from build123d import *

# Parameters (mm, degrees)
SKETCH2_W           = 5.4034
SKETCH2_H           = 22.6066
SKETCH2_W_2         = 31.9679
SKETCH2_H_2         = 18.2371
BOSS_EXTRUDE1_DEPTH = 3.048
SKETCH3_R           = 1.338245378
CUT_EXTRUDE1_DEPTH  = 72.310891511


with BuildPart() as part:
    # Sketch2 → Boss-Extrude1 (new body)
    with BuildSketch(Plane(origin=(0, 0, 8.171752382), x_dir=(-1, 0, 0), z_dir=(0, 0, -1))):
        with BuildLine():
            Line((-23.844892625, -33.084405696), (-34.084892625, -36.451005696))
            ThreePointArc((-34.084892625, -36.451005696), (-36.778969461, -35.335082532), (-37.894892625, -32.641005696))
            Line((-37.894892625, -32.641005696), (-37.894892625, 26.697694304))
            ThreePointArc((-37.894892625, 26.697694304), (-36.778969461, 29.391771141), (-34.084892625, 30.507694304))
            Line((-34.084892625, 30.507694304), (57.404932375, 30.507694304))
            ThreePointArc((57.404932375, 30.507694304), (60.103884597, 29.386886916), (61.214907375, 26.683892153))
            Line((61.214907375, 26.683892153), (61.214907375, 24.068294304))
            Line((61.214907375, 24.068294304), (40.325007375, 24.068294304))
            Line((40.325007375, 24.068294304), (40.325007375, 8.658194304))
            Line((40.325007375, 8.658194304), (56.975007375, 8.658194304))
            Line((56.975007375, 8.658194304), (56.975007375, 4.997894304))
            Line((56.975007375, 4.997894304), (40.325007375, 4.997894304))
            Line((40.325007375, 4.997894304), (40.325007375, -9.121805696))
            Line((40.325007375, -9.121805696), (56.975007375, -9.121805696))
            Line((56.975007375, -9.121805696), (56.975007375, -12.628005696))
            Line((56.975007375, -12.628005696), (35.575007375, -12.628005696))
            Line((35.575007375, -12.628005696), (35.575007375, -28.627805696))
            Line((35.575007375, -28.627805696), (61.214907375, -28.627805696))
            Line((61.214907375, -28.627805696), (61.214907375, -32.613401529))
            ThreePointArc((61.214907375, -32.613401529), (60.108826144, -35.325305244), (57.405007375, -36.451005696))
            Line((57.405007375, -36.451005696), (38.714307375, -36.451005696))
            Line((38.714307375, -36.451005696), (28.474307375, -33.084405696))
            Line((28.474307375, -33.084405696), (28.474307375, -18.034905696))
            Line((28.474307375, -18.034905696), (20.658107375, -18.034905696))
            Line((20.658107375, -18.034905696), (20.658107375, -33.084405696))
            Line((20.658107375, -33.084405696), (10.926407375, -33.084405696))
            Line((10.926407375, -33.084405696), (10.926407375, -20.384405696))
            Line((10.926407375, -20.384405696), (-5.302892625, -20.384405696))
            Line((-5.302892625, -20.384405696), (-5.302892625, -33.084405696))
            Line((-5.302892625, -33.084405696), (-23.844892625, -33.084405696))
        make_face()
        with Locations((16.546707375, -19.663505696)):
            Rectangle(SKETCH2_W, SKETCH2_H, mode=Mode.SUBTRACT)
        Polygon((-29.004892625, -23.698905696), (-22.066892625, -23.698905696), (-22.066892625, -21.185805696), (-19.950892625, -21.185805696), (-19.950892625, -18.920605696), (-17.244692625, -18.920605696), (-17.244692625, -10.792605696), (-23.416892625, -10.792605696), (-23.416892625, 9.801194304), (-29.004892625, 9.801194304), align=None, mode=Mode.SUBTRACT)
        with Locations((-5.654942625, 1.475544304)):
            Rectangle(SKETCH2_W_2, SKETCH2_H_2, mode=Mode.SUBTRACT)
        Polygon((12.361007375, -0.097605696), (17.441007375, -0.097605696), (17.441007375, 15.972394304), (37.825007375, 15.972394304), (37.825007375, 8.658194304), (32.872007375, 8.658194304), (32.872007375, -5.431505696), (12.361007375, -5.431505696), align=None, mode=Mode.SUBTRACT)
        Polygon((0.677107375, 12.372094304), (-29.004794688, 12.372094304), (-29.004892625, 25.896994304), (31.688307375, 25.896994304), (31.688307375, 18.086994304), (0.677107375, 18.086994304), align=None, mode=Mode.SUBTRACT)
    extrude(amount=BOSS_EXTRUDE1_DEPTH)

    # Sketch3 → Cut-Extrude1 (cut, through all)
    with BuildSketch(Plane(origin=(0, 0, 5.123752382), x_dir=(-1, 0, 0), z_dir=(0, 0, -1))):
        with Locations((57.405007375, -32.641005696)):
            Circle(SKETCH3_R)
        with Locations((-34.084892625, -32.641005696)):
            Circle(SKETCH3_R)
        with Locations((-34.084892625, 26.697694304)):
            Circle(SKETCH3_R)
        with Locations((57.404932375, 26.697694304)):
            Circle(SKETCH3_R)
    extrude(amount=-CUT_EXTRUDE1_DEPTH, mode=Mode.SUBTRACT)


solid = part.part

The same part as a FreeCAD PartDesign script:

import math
import FreeCAD as App
import Part
import Sketcher
Q = App.Units.Quantity

doc = App.newDocument("Part")
body = doc.addObject("PartDesign::Body", "Body")

# Sketch on XY plane
sketch1 = body.newObject("Sketcher::SketchObject", "Sketch")
sketch1.AttachmentSupport = (doc.getObject("XY_Plane"), [""])
sketch1.MapMode = "FlatFace"
sketch1.AttachmentOffset = App.Placement(App.Vector(0, 0, 8.171752), App.Rotation())
sketch1.addGeometry(Part.LineSegment(App.Vector(34.1, -36.5, 0), App.Vector(23.8, -33.1, 0)), False)
sketch1.addGeometry(Part.LineSegment(App.Vector(23.8, -33.1, 0), App.Vector(5.3, -33.1, 0)), False)
sketch1.addGeometry(Part.LineSegment(App.Vector(5.3, -33.1, 0), App.Vector(5.3, -20.4, 0)), False)
sketch1.addGeometry(Part.LineSegment(App.Vector(5.3, -20.4, 0), App.Vector(-10.9, -20.4, 0)), False)
sketch1.addGeometry(Part.LineSegment(App.Vector(-10.9, -20.4, 0), App.Vector(-10.9, -33.1, 0)), False)
sketch1.addGeometry(Part.LineSegment(App.Vector(-10.9, -33.1, 0), App.Vector(-20.7, -33.1, 0)), False)
sketch1.addGeometry(Part.LineSegment(App.Vector(-20.7, -33.1, 0), App.Vector(-20.7, -18, 0)), False)
sketch1.addGeometry(Part.LineSegment(App.Vector(-20.7, -18, 0), App.Vector(-28.5, -18, 0)), False)
sketch1.addGeometry(Part.LineSegment(App.Vector(-28.5, -18, 0), App.Vector(-28.5, -33.1, 0)), False)
sketch1.addGeometry(Part.LineSegment(App.Vector(-28.5, -33.1, 0), App.Vector(-38.7, -36.5, 0)), False)
sketch1.addGeometry(Part.LineSegment(App.Vector(-38.7, -36.5, 0), App.Vector(-57.4, -36.5, 0)), False)
sketch1.addGeometry(Part.ArcOfCircle(Part.Circle(App.Vector(-57.4, -32.6, 0), App.Vector(0, 0, 1), 3.8), math.radians(180), math.radians(270)), False)
sketch1.addGeometry(Part.LineSegment(App.Vector(-61.2, -32.6, 0), App.Vector(-61.2, -28.6, 0)), False)
sketch1.addGeometry(Part.LineSegment(App.Vector(-61.2, -28.6, 0), App.Vector(-35.6, -28.6, 0)), False)
sketch1.addGeometry(Part.LineSegment(App.Vector(-35.6, -28.6, 0), App.Vector(-35.6, -12.6, 0)), False)
sketch1.addGeometry(Part.LineSegment(App.Vector(-35.6, -12.6, 0), App.Vector(-57, -12.6, 0)), False)
sketch1.addGeometry(Part.LineSegment(App.Vector(-57, -12.6, 0), App.Vector(-57, -9.1, 0)), False)
sketch1.addGeometry(Part.LineSegment(App.Vector(-57, -9.1, 0), App.Vector(-40.3, -9.1, 0)), False)
sketch1.addGeometry(Part.LineSegment(App.Vector(-40.3, -9.1, 0), App.Vector(-40.3, 5, 0)), False)
sketch1.addGeometry(Part.LineSegment(App.Vector(-40.3, 5, 0), App.Vector(-57, 5, 0)), False)
sketch1.addGeometry(Part.LineSegment(App.Vector(-57, 5, 0), App.Vector(-57, 8.7, 0)), False)
sketch1.addGeometry(Part.LineSegment(App.Vector(-57, 8.7, 0), App.Vector(-40.3, 8.7, 0)), False)
sketch1.addGeometry(Part.LineSegment(App.Vector(-40.3, 8.7, 0), App.Vector(-40.3, 24.1, 0)), False)
sketch1.addGeometry(Part.LineSegment(App.Vector(-40.3, 24.1, 0), App.Vector(-61.2, 24.1, 0)), False)
sketch1.addGeometry(Part.LineSegment(App.Vector(-61.2, 24.1, 0), App.Vector(-61.2, 26.7, 0)), False)
sketch1.addGeometry(Part.ArcOfCircle(Part.Circle(App.Vector(-57.4, 26.7, 0), App.Vector(0, 0, 1), 3.8), math.radians(90), math.radians(180)), False)
sketch1.addGeometry(Part.LineSegment(App.Vector(-57.4, 30.5, 0), App.Vector(34.1, 30.5, 0)), False)
sketch1.addGeometry(Part.ArcOfCircle(Part.Circle(App.Vector(34.1, 26.7, 0), App.Vector(0, 0, 1), 3.8), math.radians(0), math.radians(90)), False)
sketch1.addGeometry(Part.LineSegment(App.Vector(37.9, 26.7, 0), App.Vector(37.9, -32.6, 0)), False)
sketch1.addGeometry(Part.ArcOfCircle(Part.Circle(App.Vector(34.1, -32.6, 0), App.Vector(0, 0, 1), 3.8), math.radians(-90), math.radians(0)), False)
sketch1.addGeometry(Part.LineSegment(App.Vector(-13.8, -31, 0), App.Vector(-13.8, -8.4, 0)), False)
sketch1.addGeometry(Part.LineSegment(App.Vector(-13.8, -8.4, 0), App.Vector(-19.2, -8.4, 0)), False)
sketch1.addGeometry(Part.LineSegment(App.Vector(-19.2, -8.4, 0), App.Vector(-19.2, -31, 0)), False)
sketch1.addGeometry(Part.LineSegment(App.Vector(-19.2, -31, 0), App.Vector(-13.8, -31, 0)), False)
sketch1.addGeometry(Part.LineSegment(App.Vector(29, -23.7, 0), App.Vector(29, 9.8, 0)), False)
sketch1.addGeometry(Part.LineSegment(App.Vector(29, 9.8, 0), App.Vector(23.4, 9.8, 0)), False)
sketch1.addGeometry(Part.LineSegment(App.Vector(23.4, 9.8, 0), App.Vector(23.4, -10.8, 0)), False)
sketch1.addGeometry(Part.LineSegment(App.Vector(23.4, -10.8, 0), App.Vector(17.2, -10.8, 0)), False)
sketch1.addGeometry(Part.LineSegment(App.Vector(17.2, -10.8, 0), App.Vector(17.2, -18.9, 0)), False)
sketch1.addGeometry(Part.LineSegment(App.Vector(17.2, -18.9, 0), App.Vector(20, -18.9, 0)), False)
sketch1.addGeometry(Part.LineSegment(App.Vector(20, -18.9, 0), App.Vector(20, -21.2, 0)), False)
sketch1.addGeometry(Part.LineSegment(App.Vector(20, -21.2, 0), App.Vector(22.1, -21.2, 0)), False)
sketch1.addGeometry(Part.LineSegment(App.Vector(22.1, -21.2, 0), App.Vector(22.1, -23.7, 0)), False)
sketch1.addGeometry(Part.LineSegment(App.Vector(22.1, -23.7, 0), App.Vector(29, -23.7, 0)), False)
sketch1.addGeometry(Part.LineSegment(App.Vector(-12.4, -0.1, 0), App.Vector(-17.4, -0.1, 0)), False)
sketch1.addGeometry(Part.LineSegment(App.Vector(-17.4, -0.1, 0), App.Vector(-17.4, 16, 0)), False)
sketch1.addGeometry(Part.LineSegment(App.Vector(-17.4, 16, 0), App.Vector(-37.8, 16, 0)), False)
sketch1.addGeometry(Part.LineSegment(App.Vector(-37.8, 16, 0), App.Vector(-37.8, 8.7, 0)), False)
sketch1.addGeometry(Part.LineSegment(App.Vector(-37.8, 8.7, 0), App.Vector(-32.9, 8.7, 0)), False)
sketch1.addGeometry(Part.LineSegment(App.Vector(-32.9, 8.7, 0), App.Vector(-32.9, -5.4, 0)), False)
sketch1.addGeometry(Part.LineSegment(App.Vector(-32.9, -5.4, 0), App.Vector(-12.4, -5.4, 0)), False)
sketch1.addGeometry(Part.LineSegment(App.Vector(-12.4, -5.4, 0), App.Vector(-12.4, -0.1, 0)), False)
sketch1.addGeometry(Part.LineSegment(App.Vector(21.6, -7.6, 0), App.Vector(21.6, 10.6, 0)), False)
sketch1.addGeometry(Part.LineSegment(App.Vector(21.6, 10.6, 0), App.Vector(-10.3, 10.6, 0)), False)
sketch1.addGeometry(Part.LineSegment(App.Vector(-10.3, 10.6, 0), App.Vector(-10.3, -7.6, 0)), False)
sketch1.addGeometry(Part.LineSegment(App.Vector(-10.3, -7.6, 0), App.Vector(21.6, -7.6, 0)), False)
sketch1.addGeometry(Part.LineSegment(App.Vector(-0.7, 12.4, 0), App.Vector(29, 12.4, 0)), False)
sketch1.addGeometry(Part.LineSegment(App.Vector(29, 12.4, 0), App.Vector(29, 25.9, 0)), False)
sketch1.addGeometry(Part.LineSegment(App.Vector(29, 25.9, 0), App.Vector(-31.7, 25.9, 0)), False)
sketch1.addGeometry(Part.LineSegment(App.Vector(-31.7, 25.9, 0), App.Vector(-31.7, 18.1, 0)), False)
sketch1.addGeometry(Part.LineSegment(App.Vector(-31.7, 18.1, 0), App.Vector(-0.7, 18.1, 0)), False)
sketch1.addGeometry(Part.LineSegment(App.Vector(-0.7, 18.1, 0), App.Vector(-0.7, 12.4, 0)), False)
sketch1.addConstraint(Sketcher.Constraint("Coincident", 0, 2, 1, 1))
sketch1.addConstraint(Sketcher.Constraint("Coincident", 1, 2, 2, 1))
sketch1.addConstraint(Sketcher.Constraint("Coincident", 2, 2, 3, 1))
sketch1.addConstraint(Sketcher.Constraint("Coincident", 3, 2, 4, 1))
sketch1.addConstraint(Sketcher.Constraint("Coincident", 4, 2, 5, 1))
sketch1.addConstraint(Sketcher.Constraint("Coincident", 5, 2, 6, 1))
sketch1.addConstraint(Sketcher.Constraint("Coincident", 6, 2, 7, 1))
sketch1.addConstraint(Sketcher.Constraint("Coincident", 7, 2, 8, 1))
sketch1.addConstraint(Sketcher.Constraint("Coincident", 8, 2, 9, 1))
sketch1.addConstraint(Sketcher.Constraint("Coincident", 9, 2, 10, 1))
sketch1.addConstraint(Sketcher.Constraint("Tangent", 10, 2, 11, 2))
sketch1.addConstraint(Sketcher.Constraint("Coincident", 11, 1, 12, 1))
sketch1.addConstraint(Sketcher.Constraint("Coincident", 12, 2, 13, 1))
sketch1.addConstraint(Sketcher.Constraint("Coincident", 13, 2, 14, 1))
sketch1.addConstraint(Sketcher.Constraint("Coincident", 14, 2, 15, 1))
sketch1.addConstraint(Sketcher.Constraint("Coincident", 15, 2, 16, 1))
sketch1.addConstraint(Sketcher.Constraint("Coincident", 16, 2, 17, 1))
sketch1.addConstraint(Sketcher.Constraint("Coincident", 17, 2, 18, 1))
sketch1.addConstraint(Sketcher.Constraint("Coincident", 18, 2, 19, 1))
sketch1.addConstraint(Sketcher.Constraint("Coincident", 19, 2, 20, 1))
sketch1.addConstraint(Sketcher.Constraint("Coincident", 20, 2, 21, 1))
sketch1.addConstraint(Sketcher.Constraint("Coincident", 21, 2, 22, 1))
sketch1.addConstraint(Sketcher.Constraint("Coincident", 22, 2, 23, 1))
sketch1.addConstraint(Sketcher.Constraint("Coincident", 23, 2, 24, 1))
sketch1.addConstraint(Sketcher.Constraint("Coincident", 24, 2, 25, 2))
sketch1.addConstraint(Sketcher.Constraint("Tangent", 25, 1, 26, 1))
sketch1.addConstraint(Sketcher.Constraint("Tangent", 26, 2, 27, 2))
sketch1.addConstraint(Sketcher.Constraint("Tangent", 27, 1, 28, 1))
sketch1.addConstraint(Sketcher.Constraint("Tangent", 28, 2, 29, 2))
sketch1.addConstraint(Sketcher.Constraint("Coincident", 29, 1, 0, 1))
sketch1.addConstraint(Sketcher.Constraint("Coincident", 30, 2, 31, 1))
sketch1.addConstraint(Sketcher.Constraint("Coincident", 31, 2, 32, 1))
sketch1.addConstraint(Sketcher.Constraint("Coincident", 32, 2, 33, 1))
sketch1.addConstraint(Sketcher.Constraint("Coincident", 33, 2, 30, 1))
sketch1.addConstraint(Sketcher.Constraint("Coincident", 34, 2, 35, 1))
sketch1.addConstraint(Sketcher.Constraint("Coincident", 35, 2, 36, 1))
sketch1.addConstraint(Sketcher.Constraint("Coincident", 36, 2, 37, 1))
sketch1.addConstraint(Sketcher.Constraint("Coincident", 37, 2, 38, 1))
sketch1.addConstraint(Sketcher.Constraint("Coincident", 38, 2, 39, 1))
sketch1.addConstraint(Sketcher.Constraint("Coincident", 39, 2, 40, 1))
sketch1.addConstraint(Sketcher.Constraint("Coincident", 40, 2, 41, 1))
sketch1.addConstraint(Sketcher.Constraint("Coincident", 41, 2, 42, 1))
sketch1.addConstraint(Sketcher.Constraint("Coincident", 42, 2, 43, 1))
sketch1.addConstraint(Sketcher.Constraint("Coincident", 43, 2, 34, 1))
sketch1.addConstraint(Sketcher.Constraint("Coincident", 44, 2, 45, 1))
sketch1.addConstraint(Sketcher.Constraint("Coincident", 45, 2, 46, 1))
sketch1.addConstraint(Sketcher.Constraint("Coincident", 46, 2, 47, 1))
sketch1.addConstraint(Sketcher.Constraint("Coincident", 47, 2, 48, 1))
sketch1.addConstraint(Sketcher.Constraint("Coincident", 48, 2, 49, 1))
sketch1.addConstraint(Sketcher.Constraint("Coincident", 49, 2, 50, 1))
sketch1.addConstraint(Sketcher.Constraint("Coincident", 50, 2, 51, 1))
sketch1.addConstraint(Sketcher.Constraint("Coincident", 51, 2, 44, 1))
sketch1.addConstraint(Sketcher.Constraint("Coincident", 52, 2, 53, 1))
sketch1.addConstraint(Sketcher.Constraint("Coincident", 53, 2, 54, 1))
sketch1.addConstraint(Sketcher.Constraint("Coincident", 54, 2, 55, 1))
sketch1.addConstraint(Sketcher.Constraint("Coincident", 55, 2, 52, 1))
sketch1.addConstraint(Sketcher.Constraint("Coincident", 56, 2, 57, 1))
sketch1.addConstraint(Sketcher.Constraint("Coincident", 57, 2, 58, 1))
sketch1.addConstraint(Sketcher.Constraint("Coincident", 58, 2, 59, 1))
sketch1.addConstraint(Sketcher.Constraint("Coincident", 59, 2, 60, 1))
sketch1.addConstraint(Sketcher.Constraint("Coincident", 60, 2, 61, 1))
sketch1.addConstraint(Sketcher.Constraint("Coincident", 61, 2, 56, 1))
sketch1.addConstraint(Sketcher.Constraint("Horizontal", 1))
sketch1.addConstraint(Sketcher.Constraint("Vertical", 2))
sketch1.addConstraint(Sketcher.Constraint("Horizontal", 3))
sketch1.addConstraint(Sketcher.Constraint("Vertical", 4))
sketch1.addConstraint(Sketcher.Constraint("Horizontal", 5))
sketch1.addConstraint(Sketcher.Constraint("Vertical", 6))
sketch1.addConstraint(Sketcher.Constraint("Horizontal", 7))
sketch1.addConstraint(Sketcher.Constraint("Vertical", 8))
sketch1.addConstraint(Sketcher.Constraint("Horizontal", 10))
sketch1.addConstraint(Sketcher.Constraint("Vertical", 12))
sketch1.addConstraint(Sketcher.Constraint("Horizontal", 13))
sketch1.addConstraint(Sketcher.Constraint("Vertical", 14))
sketch1.addConstraint(Sketcher.Constraint("Horizontal", 15))
sketch1.addConstraint(Sketcher.Constraint("Vertical", 16))
sketch1.addConstraint(Sketcher.Constraint("Horizontal", 17))
sketch1.addConstraint(Sketcher.Constraint("Vertical", 18))
sketch1.addConstraint(Sketcher.Constraint("Horizontal", 19))
sketch1.addConstraint(Sketcher.Constraint("Vertical", 20))
sketch1.addConstraint(Sketcher.Constraint("Horizontal", 21))
sketch1.addConstraint(Sketcher.Constraint("Vertical", 22))
sketch1.addConstraint(Sketcher.Constraint("Horizontal", 23))
sketch1.addConstraint(Sketcher.Constraint("Vertical", 24))
sketch1.addConstraint(Sketcher.Constraint("Horizontal", 26))
sketch1.addConstraint(Sketcher.Constraint("Vertical", 28))
sketch1.addConstraint(Sketcher.Constraint("Vertical", 30))
sketch1.addConstraint(Sketcher.Constraint("Horizontal", 31))
sketch1.addConstraint(Sketcher.Constraint("Vertical", 32))
sketch1.addConstraint(Sketcher.Constraint("Horizontal", 33))
sketch1.addConstraint(Sketcher.Constraint("Vertical", 34))
sketch1.addConstraint(Sketcher.Constraint("Horizontal", 35))
sketch1.addConstraint(Sketcher.Constraint("Vertical", 36))
sketch1.addConstraint(Sketcher.Constraint("Horizontal", 37))
sketch1.addConstraint(Sketcher.Constraint("Vertical", 38))
sketch1.addConstraint(Sketcher.Constraint("Horizontal", 39))
sketch1.addConstraint(Sketcher.Constraint("Vertical", 40))
sketch1.addConstraint(Sketcher.Constraint("Horizontal", 41))
sketch1.addConstraint(Sketcher.Constraint("Vertical", 42))
sketch1.addConstraint(Sketcher.Constraint("Horizontal", 43))
sketch1.addConstraint(Sketcher.Constraint("Horizontal", 44))
sketch1.addConstraint(Sketcher.Constraint("Vertical", 45))
sketch1.addConstraint(Sketcher.Constraint("Horizontal", 46))
sketch1.addConstraint(Sketcher.Constraint("Vertical", 47))
sketch1.addConstraint(Sketcher.Constraint("Horizontal", 48))
sketch1.addConstraint(Sketcher.Constraint("Vertical", 49))
sketch1.addConstraint(Sketcher.Constraint("Horizontal", 50))
sketch1.addConstraint(Sketcher.Constraint("Vertical", 51))
sketch1.addConstraint(Sketcher.Constraint("Vertical", 52))
sketch1.addConstraint(Sketcher.Constraint("Horizontal", 53))
sketch1.addConstraint(Sketcher.Constraint("Vertical", 54))
sketch1.addConstraint(Sketcher.Constraint("Horizontal", 55))
sketch1.addConstraint(Sketcher.Constraint("Horizontal", 56))
sketch1.addConstraint(Sketcher.Constraint("Horizontal", 58))
sketch1.addConstraint(Sketcher.Constraint("Vertical", 59))
sketch1.addConstraint(Sketcher.Constraint("Horizontal", 60))
sketch1.addConstraint(Sketcher.Constraint("Vertical", 61))
sketch1.addConstraint(Sketcher.Constraint("Equal", 11, 25))
sketch1.addConstraint(Sketcher.Constraint("Equal", 25, 27))
sketch1.addConstraint(Sketcher.Constraint("Equal", 27, 29))
sketch1.addConstraint(Sketcher.Constraint("Horizontal", 11, 3, 29, 3))
sketch1.addConstraint(Sketcher.Constraint("Horizontal", 1, 2, 4, 2))
sketch1.addConstraint(Sketcher.Constraint("Horizontal", 5, 2, 8, 2))
sketch1.addConstraint(Sketcher.Constraint("Horizontal", 21, 2, 47, 2))
sketch1.addConstraint(Sketcher.Constraint("Vertical", 16, 2, 19, 2))
sketch1.addConstraint(Sketcher.Constraint("Vertical", 18, 2, 21, 2))
sketch1.addConstraint(Sketcher.Constraint("Vertical", 12, 2, 23, 2))
sketch1.addConstraint(Sketcher.Constraint("Vertical", 26, 2, 29, 1))
sketch1.addConstraint(Sketcher.Constraint("Vertical", 43, 2, 57, 2))
sketch1.addConstraint(Sketcher.Constraint("Equal", 0, 9))
sketch1.addConstraint(Sketcher.Constraint("Radius", 11, Q("0.15 in")))
sketch1.addConstraint(Sketcher.Constraint("DistanceX", 44, 2, 44, 1, Q("0.2 in")))
sketch1.addConstraint(Sketcher.Constraint("DistanceY", 2, 1, 2, 2, Q("0.5 in")))
sketch1.addConstraint(Sketcher.Constraint("DistanceX", 1, 2, 1, 1, Q("0.73 in")))
sketch1.addConstraint(Sketcher.Constraint("DistanceX", 35, 2, 35, 1, Q("0.22 in")))
sketch1.addConstraint(Sketcher.Constraint("DistanceY", 38, 2, 38, 1, Q("0.32 in")))
sketch1.addConstraint(Sketcher.Constraint("DistanceX", 37, 2, 37, 1, Q("0.243 in")))
sketch1.addConstraint(Sketcher.Constraint("DistanceX", 48, 1, 48, 2, Q("0.195 in")))
sketch1.addConstraint(Sketcher.Constraint("DistanceY", 6, 1, 6, 2, Q("0.5925 in")))
sketch1.addConstraint(Sketcher.Constraint("DistanceX", 3, 2, 3, 1, Q("16.2293 mm")))
sketch1.addConstraint(Sketcher.Constraint("DistanceX", 5, 2, 5, 1, Q("9.7317 mm")))
sketch1.addConstraint(Sketcher.Constraint("DistanceX", 7, 2, 7, 1, Q("7.8162 mm")))
sketch1.addConstraint(Sketcher.Constraint("DistanceX", 10, 2, 10, 1, Q("18.6907 mm")))
sketch1.addConstraint(Sketcher.Constraint("DistanceX", 13, 1, 13, 2, Q("25.6399 mm")))
sketch1.addConstraint(Sketcher.Constraint("DistanceX", 15, 2, 15, 1, Q("21.4 mm")))
sketch1.addConstraint(Sketcher.Constraint("DistanceX", 17, 1, 17, 2, Q("16.65 mm")))
sketch1.addConstraint(Sketcher.Constraint("DistanceX", 31, 2, 31, 1, Q("5.4034 mm")))
sketch1.addConstraint(Sketcher.Constraint("DistanceX", 39, 1, 39, 2, Q("2.7062 mm")))
sketch1.addConstraint(Sketcher.Constraint("DistanceX", 41, 1, 41, 2, Q("2.116 mm")))
sketch1.addConstraint(Sketcher.Constraint("DistanceX", 46, 2, 46, 1, Q("20.384 mm")))
sketch1.addConstraint(Sketcher.Constraint("DistanceX", 53, 2, 53, 1, Q("31.9679 mm")))
sketch1.addConstraint(Sketcher.Constraint("DistanceX", 58, 2, 58, 1, Q("60.6932 mm")))
sketch1.addConstraint(Sketcher.Constraint("DistanceX", 60, 1, 60, 2, Q("31.0112 mm")))
sketch1.addConstraint(Sketcher.Constraint("DistanceY", 14, 1, 14, 2, Q("15.9998 mm")))
sketch1.addConstraint(Sketcher.Constraint("DistanceY", 16, 1, 16, 2, Q("3.5062 mm")))
sketch1.addConstraint(Sketcher.Constraint("DistanceY", 18, 1, 18, 2, Q("14.1197 mm")))
sketch1.addConstraint(Sketcher.Constraint("DistanceY", 20, 1, 20, 2, Q("3.6603 mm")))
sketch1.addConstraint(Sketcher.Constraint("DistanceY", 22, 1, 22, 2, Q("15.4101 mm")))
sketch1.addConstraint(Sketcher.Constraint("DistanceY", 28, 2, 28, 1, Q("59.3387 mm")))
sketch1.addConstraint(Sketcher.Constraint("DistanceY", 30, 1, 30, 2, Q("22.6066 mm")))
sketch1.addConstraint(Sketcher.Constraint("DistanceY", 34, 1, 34, 2, Q("33.5001 mm")))
sketch1.addConstraint(Sketcher.Constraint("DistanceY", 36, 2, 36, 1, Q("20.5938 mm")))
sketch1.addConstraint(Sketcher.Constraint("DistanceY", 40, 2, 40, 1, Q("2.2652 mm")))
sketch1.addConstraint(Sketcher.Constraint("DistanceY", 45, 1, 45, 2, Q("16.07 mm")))
sketch1.addConstraint(Sketcher.Constraint("DistanceY", 47, 2, 47, 1, Q("7.3142 mm")))
sketch1.addConstraint(Sketcher.Constraint("DistanceY", 49, 2, 49, 1, Q("14.0897 mm")))
sketch1.addConstraint(Sketcher.Constraint("DistanceY", 52, 1, 52, 2, Q("18.2371 mm")))
sketch1.addConstraint(Sketcher.Constraint("DistanceY", 59, 2, 59, 1, Q("7.81 mm")))
sketch1.addConstraint(Sketcher.Constraint("DistanceY", 61, 2, 61, 1, Q("5.7149 mm")))
sketch1.addConstraint(Sketcher.Constraint("DistanceY", 11, 1, -1, 1, Q("32.613402 mm")))
sketch1.addConstraint(Sketcher.Constraint("Distance", 0, Q("10.779221 mm")))
sketch1.addConstraint(Sketcher.Constraint("DistanceX", 26, 1, 26, 2, Q("91.489825 mm")))
sketch1.addConstraint(Sketcher.Constraint("DistanceX", 56, 1, 56, 2, Q("29.681902 mm")))
sketch1.addConstraint(Sketcher.Constraint("DistanceY", 12, 1, 12, 2, Q("3.985596 mm")))
sketch1.addConstraint(Sketcher.Constraint("DistanceY", 24, 1, 24, 2, Q("2.615598 mm")))
sketch1.addConstraint(Sketcher.Constraint("DistanceX", 11, 3, -1, 1, Q("57.405007 mm")))
sketch1.addConstraint(Sketcher.Constraint("DistanceY", 11, 3, -1, 1, Q("32.641006 mm")))
sketch1.addConstraint(Sketcher.Constraint("DistanceX", 30, 2, -1, 1, Q("13.845007 mm")))
sketch1.addConstraint(Sketcher.Constraint("DistanceY", 30, 2, -1, 1, Q("8.360206 mm")))
sketch1.addConstraint(Sketcher.Constraint("DistanceX", -1, 1, 34, 2, Q("29.004893 mm")))
sketch1.addConstraint(Sketcher.Constraint("DistanceY", -1, 1, 34, 2, Q("9.801194 mm")))
sketch1.addConstraint(Sketcher.Constraint("DistanceX", 44, 2, -1, 1, Q("17.441007 mm")))
sketch1.addConstraint(Sketcher.Constraint("DistanceX", -1, 1, 52, 2, Q("21.638893 mm")))
sketch1.addConstraint(Sketcher.Constraint("DistanceY", -1, 1, 52, 2, Q("10.594094 mm")))
sketch1.addConstraint(Sketcher.Constraint("DistanceY", -1, 1, 56, 2, Q("12.372094 mm")))
pad1 = body.newObject("PartDesign::Pad", "Pad")
pad1.Profile = sketch1
pad1.Length = Q("0.12 in")
pad1.Reversed = True

# Sketch on XY plane
sketch2 = body.newObject("Sketcher::SketchObject", "Sketch001")
sketch2.AttachmentSupport = (doc.getObject("XY_Plane"), [""])
sketch2.MapMode = "FlatFace"
sketch2.AttachmentOffset = App.Placement(App.Vector(0, 0, 5.123752), App.Rotation())
sketch2.addGeometry(Part.Circle(App.Vector(-57.4, -32.6, 0), App.Vector(0, 0, 1), 1.3), False)
sketch2.addGeometry(Part.Circle(App.Vector(34.1, -32.6, 0), App.Vector(0, 0, 1), 1.3), False)
sketch2.addGeometry(Part.Circle(App.Vector(34.1, 26.7, 0), App.Vector(0, 0, 1), 1.3), False)
sketch2.addGeometry(Part.Circle(App.Vector(-57.4, 26.7, 0), App.Vector(0, 0, 1), 1.3), False)
sketch2.addConstraint(Sketcher.Constraint("Equal", 0, 1))
sketch2.addConstraint(Sketcher.Constraint("Equal", 1, 2))
sketch2.addConstraint(Sketcher.Constraint("Equal", 2, 3))
sketch2.addConstraint(Sketcher.Constraint("Horizontal", 0, 3, 1, 3))
sketch2.addConstraint(Sketcher.Constraint("Horizontal", 2, 3, 3, 3))
sketch2.addConstraint(Sketcher.Constraint("Vertical", 1, 3, 2, 3))
sketch2.addConstraint(Sketcher.Constraint("Diameter", 0, Q("2.676491 mm")))
sketch2.addConstraint(Sketcher.Constraint("DistanceX", 0, 3, 1, 3, Q("91.4899 mm")))
sketch2.addConstraint(Sketcher.Constraint("DistanceY", 1, 3, 2, 3, Q("59.3387 mm")))
sketch2.addConstraint(Sketcher.Constraint("DistanceX", 0, 3, -1, 1, Q("57.405007 mm")))
sketch2.addConstraint(Sketcher.Constraint("DistanceY", 0, 3, -1, 1, Q("32.641006 mm")))
sketch2.addConstraint(Sketcher.Constraint("DistanceX", 3, 3, -1, 1, Q("57.404932 mm")))
pocket1 = body.newObject("PartDesign::Pocket", "Pocket")
pocket1.Profile = sketch2
pocket1.Type = "ThroughAll"
pocket1.Reversed = True

doc.recompute()
